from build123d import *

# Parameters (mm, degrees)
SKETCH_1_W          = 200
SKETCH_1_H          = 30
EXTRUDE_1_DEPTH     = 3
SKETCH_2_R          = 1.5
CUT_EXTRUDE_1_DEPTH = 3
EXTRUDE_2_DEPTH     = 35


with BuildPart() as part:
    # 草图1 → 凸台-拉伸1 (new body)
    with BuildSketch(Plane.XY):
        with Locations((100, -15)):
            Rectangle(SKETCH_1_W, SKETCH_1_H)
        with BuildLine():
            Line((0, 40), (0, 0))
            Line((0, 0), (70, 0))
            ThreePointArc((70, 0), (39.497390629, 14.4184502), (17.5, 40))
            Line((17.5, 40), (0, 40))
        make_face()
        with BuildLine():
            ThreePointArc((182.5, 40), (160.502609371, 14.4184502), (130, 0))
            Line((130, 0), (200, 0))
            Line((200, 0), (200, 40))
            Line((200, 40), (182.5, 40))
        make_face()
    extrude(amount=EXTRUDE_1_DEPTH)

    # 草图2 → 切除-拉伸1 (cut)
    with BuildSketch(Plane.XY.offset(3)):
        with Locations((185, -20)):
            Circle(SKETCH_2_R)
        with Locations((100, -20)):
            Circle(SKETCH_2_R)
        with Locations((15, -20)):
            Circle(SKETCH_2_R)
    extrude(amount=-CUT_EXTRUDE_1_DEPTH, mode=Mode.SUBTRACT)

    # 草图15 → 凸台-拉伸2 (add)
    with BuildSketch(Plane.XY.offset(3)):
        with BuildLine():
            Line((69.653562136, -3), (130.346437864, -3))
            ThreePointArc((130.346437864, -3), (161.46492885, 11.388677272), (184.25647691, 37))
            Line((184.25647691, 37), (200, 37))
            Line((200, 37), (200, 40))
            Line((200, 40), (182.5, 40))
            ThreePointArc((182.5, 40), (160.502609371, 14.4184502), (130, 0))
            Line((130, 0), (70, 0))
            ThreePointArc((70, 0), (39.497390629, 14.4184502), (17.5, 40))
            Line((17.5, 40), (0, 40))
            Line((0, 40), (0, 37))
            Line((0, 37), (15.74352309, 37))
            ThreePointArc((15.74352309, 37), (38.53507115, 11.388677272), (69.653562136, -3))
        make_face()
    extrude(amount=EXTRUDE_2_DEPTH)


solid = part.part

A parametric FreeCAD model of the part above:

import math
import FreeCAD as App
import Part
import Sketcher
Q = App.Units.Quantity

doc = App.newDocument("Part")
body = doc.addObject("PartDesign::Body", "Body")

sketch1 = doc.addObject("Sketcher::SketchObject", "Sketch")
body.addObject(sketch1)
sketch1.AttachmentSupport = (doc.XY_Plane, [""])
sketch1.MapMode = "FlatFace"
sketch1.addGeometry(Part.LineSegment(App.Vector(0, -30, 0), App.Vector(200, -30, 0)), False)
sketch1.addGeometry(Part.LineSegment(App.Vector(200, -30, 0), App.Vector(200, 40, 0)), False)
sketch1.addGeometry(Part.LineSegment(App.Vector(200, 40, 0), App.Vector(182, 40, 0)), False)
sketch1.addGeometry(Part.ArcOfCircle(Part.Circle(App.Vector(111, 79, 0), App.Vector(0, 0, 1), 81), math.radians(-77), math.radians(-29)), False)
sketch1.addGeometry(Part.LineSegment(App.Vector(130, 0, 0), App.Vector(70, 0, 0)), False)
sketch1.addGeometry(Part.ArcOfCircle(Part.Circle(App.Vector(89, 79, 0), App.Vector(0, 0, 1), 81), math.radians(-151), math.radians(-103)), False)
sketch1.addGeometry(Part.LineSegment(App.Vector(18, 40, 0), App.Vector(0, 40, 0)), False)
sketch1.addGeometry(Part.LineSegment(App.Vector(0, 40, 0), App.Vector(0, -30, 0)), False)
sketch1.addConstraint(Sketcher.Constraint("Coincident", 0, 2, 1, 1))
sketch1.addConstraint(Sketcher.Constraint("Coincident", 1, 2, 2, 1))
sketch1.addConstraint(Sketcher.Constraint("Coincident", 2, 2, 3, 2))
sketch1.addConstraint(Sketcher.Constraint("Coincident", 3, 1, 4, 1))
sketch1.addConstraint(Sketcher.Constraint("Coincident", 4, 2, 5, 2))
sketch1.addConstraint(Sketcher.Constraint("Coincident", 5, 1, 6, 1))
sketch1.addConstraint(Sketcher.Constraint("Coincident", 6, 2, 7, 1))
sketch1.addConstraint(Sketcher.Constraint("Coincident", 7, 2, 0, 1))
sketch1.addConstraint(Sketcher.Constraint("Horizontal", 0))
sketch1.addConstraint(Sketcher.Constraint("Vertical", 1))
sketch1.addConstraint(Sketcher.Constraint("Horizontal", 2))
sketch1.addConstraint(Sketcher.Constraint("Horizontal", 4))
sketch1.addConstraint(Sketcher.Constraint("Horizontal", 6))
sketch1.addConstraint(Sketcher.Constraint("Vertical", 7))
sketch1.addConstraint(Sketcher.Constraint("Equal", 3, 5))
sketch1.addConstraint(Sketcher.Constraint("PointOnObject", 3, 1, -1))
sketch1.addConstraint(Sketcher.Constraint("PointOnObject", 6, 2, -2))
sketch1.addConstraint(Sketcher.Constraint("Horizontal", 3, 3, 5, 3))
sketch1.addConstraint(Sketcher.Constraint("Horizontal", 2, 2, 5, 1))
sketch1.addConstraint(Sketcher.Constraint("Equal", 2, 6))
sketch1.addConstraint(Sketcher.Constraint("DistanceX", 0, 1, 0, 2, Q("200 mm")))
sketch1.addConstraint(Sketcher.Constraint("DistanceX", 4, 2, 4, 1, Q("60 mm")))
sketch1.addConstraint(Sketcher.Constraint("DistanceY", 1, 1, 1, 2, Q("70 mm")))
sketch1.addConstraint(Sketcher.Constraint("DistanceX", 2, 2, 2, 1, Q("17.5 mm")))
sketch1.addConstraint(Sketcher.Constraint("DistanceY", 0, 2, -1, 1, Q("30 mm")))
sketch1.addConstraint(Sketcher.Constraint("Radius", 3, Q("81.110145 mm")))
pad1 = doc.addObject("PartDesign::Pad", "Pad")
body.addObject(pad1)
pad1.Profile = sketch1
pad1.Length = 3

sketch2 = doc.addObject("Sketcher::SketchObject", "Sketch001")
body.addObject(sketch2)
sketch2.AttachmentSupport = (doc.XY_Plane, [""])
sketch2.MapMode = "FlatFace"
sketch2.AttachmentOffset = App.Placement(App.Vector(0, 0, 3), App.Rotation())
sketch2.addGeometry(Part.Circle(App.Vector(185, -20, 0), App.Vector(0, 0, 1), 1.5), False)
sketch2.addGeometry(Part.Circle(App.Vector(100, -20, 0), App.Vector(0, 0, 1), 1.5), False)
sketch2.addGeometry(Part.Circle(App.Vector(15, -20, 0), App.Vector(0, 0, 1), 1.5), False)
sketch2.addConstraint(Sketcher.Constraint("Equal", 0, 1))
sketch2.addConstraint(Sketcher.Constraint("Equal", 1, 2))
sketch2.addConstraint(Sketcher.Constraint("Horizontal", 0, 3, 1, 3))
sketch2.addConstraint(Sketcher.Constraint("Horizontal", 1, 3, 2, 3))
sketch2.addConstraint(Sketcher.Constraint("Diameter", 0, Q("3 mm")))
sketch2.addConstraint(Sketcher.Constraint("DistanceX", -1, 1, 0, 3, Q("185 mm")))
sketch2.addConstraint(Sketcher.Constraint("DistanceY", 0, 3, -1, 1, Q("20 mm")))
sketch2.addConstraint(Sketcher.Constraint("DistanceX", -1, 1, 1, 3, Q("100 mm")))
sketch2.addConstraint(Sketcher.Constraint("DistanceX", -1, 1, 2, 3, Q("15 mm")))
pocket1 = doc.addObject("PartDesign::Pocket", "Pocket")
body.addObject(pocket1)
pocket1.Profile = sketch2
pocket1.Length = 3

sketch3 = doc.addObject("Sketcher::SketchObject", "Sketch002")
body.addObject(sketch3)
sketch3.AttachmentSupport = (doc.XY_Plane, [""])
sketch3.MapMode = "FlatFace"
sketch3.AttachmentOffset = App.Placement(App.Vector(0, 0, 3), App.Rotation())
sketch3.addGeometry(Part.LineSegment(App.Vector(69.7, -3, 0), App.Vector(130.3, -3, 0)), False)
sketch3.addGeometry(Part.ArcOfCircle(Part.Circle(App.Vector(111.3, 78.9, 0), App.Vector(0, 0, 1), 84.1), math.radians(-77), math.radians(-30)), False)
sketch3.addGeometry(Part.LineSegment(App.Vector(184.3, 37, 0), App.Vector(200, 37, 0)), False)
sketch3.addGeometry(Part.LineSegment(App.Vector(200, 37, 0), App.Vector(200, 40, 0)), False)
sketch3.addGeometry(Part.LineSegment(App.Vector(200, 40, 0), App.Vector(182.5, 40, 0)), False)
sketch3.addGeometry(Part.ArcOfCircle(Part.Circle(App.Vector(111.3, 78.9, 0), App.Vector(0, 0, 1), 81.1), math.radians(-77), math.radians(-29)), False)
sketch3.addGeometry(Part.LineSegment(App.Vector(130, 0, 0), App.Vector(70, 0, 0)), False)
sketch3.addGeometry(Part.ArcOfCircle(Part.Circle(App.Vector(88.7, 78.9, 0), App.Vector(0, 0, 1), 81.1), math.radians(-151), math.radians(-103)), False)
sketch3.addGeometry(Part.LineSegment(App.Vector(17.5, 40, 0), App.Vector(0, 40, 0)), False)
sketch3.addGeometry(Part.LineSegment(App.Vector(0, 40, 0), App.Vector(0, 37, 0)), False)
sketch3.addGeometry(Part.LineSegment(App.Vector(0, 37, 0), App.Vector(15.7, 37, 0)), False)
sketch3.addGeometry(Part.ArcOfCircle(Part.Circle(App.Vector(88.7, 78.9, 0), App.Vector(0, 0, 1), 84.1), math.radians(-150), math.radians(-103)), False)
sketch3.addConstraint(Sketcher.Constraint("Coincident", 0, 2, 1, 1))
sketch3.addConstraint(Sketcher.Constraint("Coincident", 1, 2, 2, 1))
sketch3.addConstraint(Sketcher.Constraint("Coincident", 2, 2, 3, 1))
sketch3.addConstraint(Sketcher.Constraint("Coincident", 3, 2, 4, 1))
sketch3.addConstraint(Sketcher.Constraint("Coincident", 4, 2, 5, 2))
sketch3.addConstraint(Sketcher.Constraint("Coincident", 5, 1, 6, 1))
sketch3.addConstraint(Sketcher.Constraint("Coincident", 6, 2, 7, 2))
sketch3.addConstraint(Sketcher.Constraint("Coincident", 7, 1, 8, 1))
sketch3.addConstraint(Sketcher.Constraint("Coincident", 8, 2, 9, 1))
sketch3.addConstraint(Sketcher.Constraint("Coincident", 9, 2, 10, 1))
sketch3.addConstraint(Sketcher.Constraint("Coincident", 10, 2, 11, 1))
sketch3.addConstraint(Sketcher.Constraint("Coincident", 11, 2, 0, 1))
sketch3.addConstraint(Sketcher.Constraint("Horizontal", 0))
sketch3.addConstraint(Sketcher.Constraint("Horizontal", 2))
sketch3.addConstraint(Sketcher.Constraint("Vertical", 3))
sketch3.addConstraint(Sketcher.Constraint("Horizontal", 4))
sketch3.addConstraint(Sketcher.Constraint("Horizontal", 6))
sketch3.addConstraint(Sketcher.Constraint("Horizontal", 8))
sketch3.addConstraint(Sketcher.Constraint("Vertical", 9))
sketch3.addConstraint(Sketcher.Constraint("Horizontal", 10))
sketch3.addConstraint(Sketcher.Constraint("Coincident", 5, 3, 1, 3))
sketch3.addConstraint(Sketcher.Constraint("Coincident", 11, 3, 7, 3))
sketch3.addConstraint(Sketcher.Constraint("Equal", 5, 7))
sketch3.addConstraint(Sketcher.Constraint("Equal", 1, 11))
sketch3.addConstraint(Sketcher.Constraint("PointOnObject", 5, 1, -1))
sketch3.addConstraint(Sketcher.Constraint("PointOnObject", 8, 2, -2))
sketch3.addConstraint(Sketcher.Constraint("Horizontal", 5, 3, 7, 3))
sketch3.addConstraint(Sketcher.Constraint("Horizontal", 4, 2, 7, 1))
sketch3.addConstraint(Sketcher.Constraint("Horizontal", 2, 2, 9, 2))
sketch3.addConstraint(Sketcher.Constraint("Equal", 4, 8))
sketch3.addConstraint(Sketcher.Constraint("DistanceX", 6, 2, 6, 1, Q("60 mm")))
sketch3.addConstraint(Sketcher.Constraint("DistanceY", 3, 1, 3, 2, Q("3 mm")))
sketch3.addConstraint(Sketcher.Constraint("DistanceX", 4, 2, 4, 1, Q("17.5 mm")))
sketch3.addConstraint(Sketcher.Constraint("DistanceY", 0, 2, -1, 1, Q("3 mm")))
sketch3.addConstraint(Sketcher.Constraint("DistanceY", -1, 1, 1, 2, Q("37 mm")))
sketch3.addConstraint(Sketcher.Constraint("DistanceX", -1, 1, 2, 2, Q("200 mm")))
sketch3.addConstraint(Sketcher.Constraint("Radius", 1, Q("84.110145 mm")))
sketch3.addConstraint(Sketcher.Constraint("Radius", 5, Q("81.110145 mm")))
pad2 = doc.addObject("PartDesign::Pad", "Pad001")
body.addObject(pad2)
pad2.Profile = sketch3
pad2.Length = 35

doc.recompute()
